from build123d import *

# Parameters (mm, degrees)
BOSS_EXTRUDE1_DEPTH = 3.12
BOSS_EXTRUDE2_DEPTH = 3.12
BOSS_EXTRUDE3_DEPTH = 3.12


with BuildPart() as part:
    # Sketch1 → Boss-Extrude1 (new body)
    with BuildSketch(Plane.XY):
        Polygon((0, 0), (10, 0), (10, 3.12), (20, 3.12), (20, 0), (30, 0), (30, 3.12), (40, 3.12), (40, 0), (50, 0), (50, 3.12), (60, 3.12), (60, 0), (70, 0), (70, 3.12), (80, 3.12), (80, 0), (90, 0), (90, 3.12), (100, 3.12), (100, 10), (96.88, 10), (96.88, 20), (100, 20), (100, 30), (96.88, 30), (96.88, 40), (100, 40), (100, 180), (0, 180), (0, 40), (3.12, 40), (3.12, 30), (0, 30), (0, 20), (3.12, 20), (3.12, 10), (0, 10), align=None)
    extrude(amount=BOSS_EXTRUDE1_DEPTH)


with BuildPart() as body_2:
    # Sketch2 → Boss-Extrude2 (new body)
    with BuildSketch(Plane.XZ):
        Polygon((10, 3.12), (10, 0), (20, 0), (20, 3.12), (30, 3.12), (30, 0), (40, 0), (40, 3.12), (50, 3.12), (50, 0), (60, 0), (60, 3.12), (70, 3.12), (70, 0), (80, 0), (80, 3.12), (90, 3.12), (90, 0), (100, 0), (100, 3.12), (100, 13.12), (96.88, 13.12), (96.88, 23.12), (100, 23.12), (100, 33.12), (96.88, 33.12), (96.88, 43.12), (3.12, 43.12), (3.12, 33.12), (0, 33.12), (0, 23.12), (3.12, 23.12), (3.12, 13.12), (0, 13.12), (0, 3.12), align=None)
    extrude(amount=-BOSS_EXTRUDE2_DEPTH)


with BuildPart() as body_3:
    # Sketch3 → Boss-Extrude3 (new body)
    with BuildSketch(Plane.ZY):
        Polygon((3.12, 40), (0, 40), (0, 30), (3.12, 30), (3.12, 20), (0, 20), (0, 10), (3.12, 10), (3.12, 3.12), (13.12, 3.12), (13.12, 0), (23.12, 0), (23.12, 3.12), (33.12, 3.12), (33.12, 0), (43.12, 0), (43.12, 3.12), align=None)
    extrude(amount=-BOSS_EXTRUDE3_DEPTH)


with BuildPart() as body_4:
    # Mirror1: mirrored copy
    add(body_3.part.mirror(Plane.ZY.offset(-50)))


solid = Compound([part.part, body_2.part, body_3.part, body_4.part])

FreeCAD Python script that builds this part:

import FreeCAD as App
import Part
import Sketcher

doc = App.newDocument("Part")
body = doc.addObject("PartDesign::Body", "Body")

sketch1 = body.newObject("Sketcher::SketchObject", "Sketch")
sketch1.AttachmentSupport = (doc.getObject("XY_Plane"), [""])
sketch1.MapMode = "FlatFace"
sketch1.addGeometry([
    Part.LineSegment(App.Vector(0, 0, 0), App.Vector(10, 0, 0)),
    Part.LineSegment(App.Vector(10, 0, 0), App.Vector(10, 3.12, 0)),
    Part.LineSegment(App.Vector(10, 3.12, 0), App.Vector(20, 3.12, 0)),
    Part.LineSegment(App.Vector(20, 3.12, 0), App.Vector(20, 0, 0)),
    Part.LineSegment(App.Vector(20, 0, 0), App.Vector(30, 0, 0)),
    Part.LineSegment(App.Vector(30, 0, 0), App.Vector(30, 3.12, 0)),
    Part.LineSegment(App.Vector(30, 3.12, 0), App.Vector(40, 3.12, 0)),
    Part.LineSegment(App.Vector(40, 3.12, 0), App.Vector(40, 0, 0)),
    Part.LineSegment(App.Vector(40, 0, 0), App.Vector(50, 0, 0)),
    Part.LineSegment(App.Vector(50, 0, 0), App.Vector(50, 3.12, 0)),
    Part.LineSegment(App.Vector(50, 3.12, 0), App.Vector(60, 3.12, 0)),
    Part.LineSegment(App.Vector(60, 3.12, 0), App.Vector(60, 0, 0)),
    Part.LineSegment(App.Vector(60, 0, 0), App.Vector(70, 0, 0)),
    Part.LineSegment(App.Vector(70, 0, 0), App.Vector(70, 3.12, 0)),
    Part.LineSegment(App.Vector(70, 3.12, 0), App.Vector(80, 3.12, 0)),
    Part.LineSegment(App.Vector(80, 3.12, 0), App.Vector(80, 0, 0)),
    Part.LineSegment(App.Vector(80, 0, 0), App.Vector(90, 0, 0)),
    Part.LineSegment(App.Vector(90, 0, 0), App.Vector(90, 3.12, 0)),
    Part.LineSegment(App.Vector(90, 3.12, 0), App.Vector(100, 3.12, 0)),
    Part.LineSegment(App.Vector(100, 3.12, 0), App.Vector(100, 10, 0)),
    Part.LineSegment(App.Vector(100, 10, 0), App.Vector(96.88, 10, 0)),
    Part.LineSegment(App.Vector(96.88, 10, 0), App.Vector(96.88, 20, 0)),
    Part.LineSegment(App.Vector(96.88, 20, 0), App.Vector(100, 20, 0)),
    Part.LineSegment(App.Vector(100, 20, 0), App.Vector(100, 30, 0)),
    Part.LineSegment(App.Vector(100, 30, 0), App.Vector(96.88, 30, 0)),
    Part.LineSegment(App.Vector(96.88, 30, 0), App.Vector(96.88, 40, 0)),
    Part.LineSegment(App.Vector(96.88, 40, 0), App.Vector(100, 40, 0)),
    Part.LineSegment(App.Vector(100, 40, 0), App.Vector(100, 180, 0)),
    Part.LineSegment(App.Vector(100, 180, 0), App.Vector(0, 180, 0)),
    Part.LineSegment(App.Vector(0, 180, 0), App.Vector(0, 40, 0)),
    Part.LineSegment(App.Vector(0, 40, 0), App.Vector(3.12, 40, 0)),
    Part.LineSegment(App.Vector(3.12, 40, 0), App.Vector(3.12, 30, 0)),
    Part.LineSegment(App.Vector(3.12, 30, 0), App.Vector(0, 30, 0)),
    Part.LineSegment(App.Vector(0, 30, 0), App.Vector(0, 20, 0)),
    Part.LineSegment(App.Vector(0, 20, 0), App.Vector(3.12, 20, 0)),
    Part.LineSegment(App.Vector(3.12, 20, 0), App.Vector(3.12, 10, 0)),
    Part.LineSegment(App.Vector(3.12, 10, 0), App.Vector(0, 10, 0)),
    Part.LineSegment(App.Vector(0, 10, 0), App.Vector(0, 0, 0)),
], False)
sketch1.addConstraint([
    Sketcher.Constraint("Coincident", 0, 2, 1, 1),
    Sketcher.Constraint("Coincident", 1, 2, 2, 1),
    Sketcher.Constraint("Coincident", 2, 2, 3, 1),
    Sketcher.Constraint("Coincident", 3, 2, 4, 1),
    Sketcher.Constraint("Coincident", 4, 2, 5, 1),
    Sketcher.Constraint("Coincident", 5, 2, 6, 1),
    Sketcher.Constraint("Coincident", 6, 2, 7, 1),
    Sketcher.Constraint("Coincident", 7, 2, 8, 1),
    Sketcher.Constraint("Coincident", 8, 2, 9, 1),
    Sketcher.Constraint("Coincident", 9, 2, 10, 1),
    Sketcher.Constraint("Coincident", 10, 2, 11, 1),
    Sketcher.Constraint("Coincident", 11, 2, 12, 1),
    Sketcher.Constraint("Coincident", 12, 2, 13, 1),
    Sketcher.Constraint("Coincident", 13, 2, 14, 1),
    Sketcher.Constraint("Coincident", 14, 2, 15, 1),
    Sketcher.Constraint("Coincident", 15, 2, 16, 1),
    Sketcher.Constraint("Coincident", 16, 2, 17, 1),
    Sketcher.Constraint("Coincident", 17, 2, 18, 1),
    Sketcher.Constraint("Coincident", 18, 2, 19, 1),
    Sketcher.Constraint("Coincident", 19, 2, 20, 1),
    Sketcher.Constraint("Coincident", 20, 2, 21, 1),
    Sketcher.Constraint("Coincident", 21, 2, 22, 1),
    Sketcher.Constraint("Coincident", 22, 2, 23, 1),
    Sketcher.Constraint("Coincident", 23, 2, 24, 1),
    Sketcher.Constraint("Coincident", 24, 2, 25, 1),
    Sketcher.Constraint("Coincident", 25, 2, 26, 1),
    Sketcher.Constraint("Coincident", 26, 2, 27, 1),
    Sketcher.Constraint("Coincident", 27, 2, 28, 1),
    Sketcher.Constraint("Coincident", 28, 2, 29, 1),
    Sketcher.Constraint("Coincident", 29, 2, 30, 1),
    Sketcher.Constraint("Coincident", 30, 2, 31, 1),
    Sketcher.Constraint("Coincident", 31, 2, 32, 1),
    Sketcher.Constraint("Coincident", 32, 2, 33, 1),
    Sketcher.Constraint("Coincident", 33, 2, 34, 1),
    Sketcher.Constraint("Coincident", 34, 2, 35, 1),
    Sketcher.Constraint("Coincident", 35, 2, 36, 1),
    Sketcher.Constraint("Coincident", 36, 2, 37, 1),
    Sketcher.Constraint("Coincident", 37, 2, 0, 1),
    Sketcher.Constraint("Horizontal", 0),
    Sketcher.Constraint("Vertical", 1),
    Sketcher.Constraint("Horizontal", 2),
    Sketcher.Constraint("Vertical", 3),
    Sketcher.Constraint("Horizontal", 4),
    Sketcher.Constraint("Vertical", 5),
    Sketcher.Constraint("Horizontal", 6),
    Sketcher.Constraint("Vertical", 7),
    Sketcher.Constraint("Horizontal", 8),
    Sketcher.Constraint("Vertical", 9),
    Sketcher.Constraint("Horizontal", 10),
    Sketcher.Constraint("Vertical", 11),
    Sketcher.Constraint("Horizontal", 12),
    Sketcher.Constraint("Vertical", 13),
    Sketcher.Constraint("Horizontal", 14),
    Sketcher.Constraint("Vertical", 15),
    Sketcher.Constraint("Horizontal", 16),
    Sketcher.Constraint("Vertical", 17),
    Sketcher.Constraint("Horizontal", 18),
    Sketcher.Constraint("Vertical", 19),
    Sketcher.Constraint("Horizontal", 20),
    Sketcher.Constraint("Vertical", 21),
    Sketcher.Constraint("Horizontal", 22),
    Sketcher.Constraint("Vertical", 23),
    Sketcher.Constraint("Horizontal", 24),
    Sketcher.Constraint("Vertical", 25),
    Sketcher.Constraint("Horizontal", 26),
    Sketcher.Constraint("Vertical", 27),
    Sketcher.Constraint("Horizontal", 28),
    Sketcher.Constraint("Vertical", 29),
    Sketcher.Constraint("Horizontal", 30),
    Sketcher.Constraint("Vertical", 31),
    Sketcher.Constraint("Horizontal", 32),
    Sketcher.Constraint("Vertical", 33),
    Sketcher.Constraint("Horizontal", 34),
    Sketcher.Constraint("Vertical", 35),
    Sketcher.Constraint("Horizontal", 36),
    Sketcher.Constraint("Vertical", 37),
    Sketcher.Constraint("Coincident", 37, 2, -1, 1),
    Sketcher.Constraint("PointOnObject", 3, 2, -1),
    Sketcher.Constraint("PointOnObject", 7, 2, -1),
    Sketcher.Constraint("PointOnObject", 11, 2, -1),
    Sketcher.Constraint("PointOnObject", 15, 2, -1),
    Sketcher.Constraint("PointOnObject", 28, 2, -2),
    Sketcher.Constraint("PointOnObject", 32, 2, -2),
    Sketcher.Constraint("Horizontal", 2, 2, 5, 2),
    Sketcher.Constraint("Horizontal", 6, 2, 9, 2),
    Sketcher.Constraint("Horizontal", 10, 2, 13, 2),
    Sketcher.Constraint("Horizontal", 14, 2, 17, 2),
    Sketcher.Constraint("Horizontal", 26, 2, 29, 2),
    Sketcher.Constraint("Horizontal", 24, 2, 31, 2),
    Sketcher.Constraint("Horizontal", 22, 2, 33, 2),
    Sketcher.Constraint("Horizontal", 20, 2, 35, 2),
    Sketcher.Constraint("Vertical", 19, 2, 22, 2),
    Sketcher.Constraint("Vertical", 21, 2, 24, 2),
    Sketcher.Constraint("Vertical", 23, 2, 26, 2),
    Sketcher.Constraint("Vertical", 31, 2, 34, 2),
    Sketcher.Constraint("Equal", 0, 2),
    Sketcher.Constraint("Equal", 2, 4),
    Sketcher.Constraint("Equal", 4, 6),
    Sketcher.Constraint("Equal", 6, 8),
    Sketcher.Constraint("Equal", 8, 10),
    Sketcher.Constraint("Equal", 10, 12),
    Sketcher.Constraint("Equal", 12, 14),
    Sketcher.Constraint("Equal", 14, 16),
    Sketcher.Constraint("Equal", 16, 18),
    Sketcher.Constraint("Equal", 26, 30),
    Sketcher.Constraint("Equal", 36, 1),
    Sketcher.Constraint("Equal", 18, 21),
    Sketcher.Constraint("Equal", 21, 23),
    Sketcher.Constraint("Equal", 23, 25),
    Sketcher.Constraint("Equal", 35, 37),
    Sketcher.Constraint("DistanceX", 0, 1, 0, 2, 10.0),
    Sketcher.Constraint("DistanceY", 27, 1, 27, 2, 140.0),
    Sketcher.Constraint("DistanceX", 20, 2, 20, 1, 3.12),
])
pad1 = body.newObject("PartDesign::Pad", "Pad")
pad1.Profile = sketch1
pad1.Length = 3.12
body2 = doc.addObject("PartDesign::Body", "Body001")

sketch2 = body2.newObject("Sketcher::SketchObject", "Sketch001")
sketch2.AttachmentSupport = (doc.getObject("XZ_Plane001"), [""])
sketch2.MapMode = "FlatFace"
sketch2.addGeometry([
    Part.LineSegment(App.Vector(10, 3.12, 0), App.Vector(10, 0, 0)),
    Part.LineSegment(App.Vector(10, 0, 0), App.Vector(20, 0, 0)),
    Part.LineSegment(App.Vector(20, 0, 0), App.Vector(20, 3.12, 0)),
    Part.LineSegment(App.Vector(20, 3.12, 0), App.Vector(30, 3.12, 0)),
    Part.LineSegment(App.Vector(30, 3.12, 0), App.Vector(30, 0, 0)),
    Part.LineSegment(App.Vector(30, 0, 0), App.Vector(40, 0, 0)),
    Part.LineSegment(App.Vector(40, 0, 0), App.Vector(40, 3.12, 0)),
    Part.LineSegment(App.Vector(40, 3.12, 0), App.Vector(50, 3.12, 0)),
    Part.LineSegment(App.Vector(50, 3.12, 0), App.Vector(50, 0, 0)),
    Part.LineSegment(App.Vector(50, 0, 0), App.Vector(60, 0, 0)),
    Part.LineSegment(App.Vector(60, 0, 0), App.Vector(60, 3.12, 0)),
    Part.LineSegment(App.Vector(60, 3.12, 0), App.Vector(70, 3.12, 0)),
    Part.LineSegment(App.Vector(70, 3.12, 0), App.Vector(70, 0, 0)),
    Part.LineSegment(App.Vector(70, 0, 0), App.Vector(80, 0, 0)),
    Part.LineSegment(App.Vector(80, 0, 0), App.Vector(80, 3.12, 0)),
    Part.LineSegment(App.Vector(80, 3.12, 0), App.Vector(90, 3.12, 0)),
    Part.LineSegment(App.Vector(90, 3.12, 0), App.Vector(90, 0, 0)),
    Part.LineSegment(App.Vector(90, 0, 0), App.Vector(100, 0, 0)),
    Part.LineSegment(App.Vector(100, 0, 0), App.Vector(100, 13.12, 0)),
    Part.LineSegment(App.Vector(100, 13.12, 0), App.Vector(96.88, 13.12, 0)),
    Part.LineSegment(App.Vector(96.88, 13.12, 0), App.Vector(96.88, 23.12, 0)),
    Part.LineSegment(App.Vector(96.88, 23.12, 0), App.Vector(100, 23.12, 0)),
    Part.LineSegment(App.Vector(100, 23.12, 0), App.Vector(100, 33.12, 0)),
    Part.LineSegment(App.Vector(100, 33.12, 0), App.Vector(96.88, 33.12, 0)),
    Part.LineSegment(App.Vector(96.88, 33.12, 0), App.Vector(96.88, 43.12, 0)),
    Part.LineSegment(App.Vector(96.88, 43.12, 0), App.Vector(3.12, 43.12, 0)),
    Part.LineSegment(App.Vector(3.12, 43.12, 0), App.Vector(3.12, 33.12, 0)),
    Part.LineSegment(App.Vector(3.12, 33.12, 0), App.Vector(0, 33.12, 0)),
    Part.LineSegment(App.Vector(0, 33.12, 0), App.Vector(0, 23.12, 0)),
    Part.LineSegment(App.Vector(0, 23.12, 0), App.Vector(3.12, 23.12, 0)),
    Part.LineSegment(App.Vector(3.12, 23.12, 0), App.Vector(3.12, 13.12, 0)),
    Part.LineSegment(App.Vector(3.12, 13.12, 0), App.Vector(0, 13.12, 0)),
    Part.LineSegment(App.Vector(0, 13.12, 0), App.Vector(0, 3.12, 0)),
    Part.LineSegment(App.Vector(0, 3.12, 0), App.Vector(10, 3.12, 0)),
], False)
sketch2.addConstraint([
    Sketcher.Constraint("Coincident", 0, 2, 1, 1),
    Sketcher.Constraint("Coincident", 1, 2, 2, 1),
    Sketcher.Constraint("Coincident", 2, 2, 3, 1),
    Sketcher.Constraint("Coincident", 3, 2, 4, 1),
    Sketcher.Constraint("Coincident", 4, 2, 5, 1),
    Sketcher.Constraint("Coincident", 5, 2, 6, 1),
    Sketcher.Constraint("Coincident", 6, 2, 7, 1),
    Sketcher.Constraint("Coincident", 7, 2, 8, 1),
    Sketcher.Constraint("Coincident", 8, 2, 9, 1),
    Sketcher.Constraint("Coincident", 9, 2, 10, 1),
    Sketcher.Constraint("Coincident", 10, 2, 11, 1),
    Sketcher.Constraint("Coincident", 11, 2, 12, 1),
    Sketcher.Constraint("Coincident", 12, 2, 13, 1),
    Sketcher.Constraint("Coincident", 13, 2, 14, 1),
    Sketcher.Constraint("Coincident", 14, 2, 15, 1),
    Sketcher.Constraint("Coincident", 15, 2, 16, 1),
    Sketcher.Constraint("Coincident", 16, 2, 17, 1),
    Sketcher.Constraint("Coincident", 17, 2, 18, 1),
    Sketcher.Constraint("Coincident", 18, 2, 19, 1),
    Sketcher.Constraint("Coincident", 19, 2, 20, 1),
    Sketcher.Constraint("Coincident", 20, 2, 21, 1),
    Sketcher.Constraint("Coincident", 21, 2, 22, 1),
    Sketcher.Constraint("Coincident", 22, 2, 23, 1),
    Sketcher.Constraint("Coincident", 23, 2, 24, 1),
    Sketcher.Constraint("Coincident", 24, 2, 25, 1),
    Sketcher.Constraint("Coincident", 25, 2, 26, 1),
    Sketcher.Constraint("Coincident", 26, 2, 27, 1),
    Sketcher.Constraint("Coincident", 27, 2, 28, 1),
    Sketcher.Constraint("Coincident", 28, 2, 29, 1),
    Sketcher.Constraint("Coincident", 29, 2, 30, 1),
    Sketcher.Constraint("Coincident", 30, 2, 31, 1),
    Sketcher.Constraint("Coincident", 31, 2, 32, 1),
    Sketcher.Constraint("Coincident", 32, 2, 33, 1),
    Sketcher.Constraint("Coincident", 33, 2, 0, 1),
    Sketcher.Constraint("Vertical", 0),
    Sketcher.Constraint("Horizontal", 1),
    Sketcher.Constraint("Vertical", 2),
    Sketcher.Constraint("Horizontal", 3),
    Sketcher.Constraint("Vertical", 4),
    Sketcher.Constraint("Horizontal", 5),
    Sketcher.Constraint("Vertical", 6),
    Sketcher.Constraint("Horizontal", 7),
    Sketcher.Constraint("Vertical", 8),
    Sketcher.Constraint("Horizontal", 9),
    Sketcher.Constraint("Vertical", 10),
    Sketcher.Constraint("Horizontal", 11),
    Sketcher.Constraint("Vertical", 12),
    Sketcher.Constraint("Horizontal", 13),
    Sketcher.Constraint("Vertical", 14),
    Sketcher.Constraint("Horizontal", 15),
    Sketcher.Constraint("Vertical", 16),
    Sketcher.Constraint("Horizontal", 17),
    Sketcher.Constraint("Vertical", 18),
    Sketcher.Constraint("Horizontal", 19),
    Sketcher.Constraint("Vertical", 20),
    Sketcher.Constraint("Horizontal", 21),
    Sketcher.Constraint("Vertical", 22),
    Sketcher.Constraint("Horizontal", 23),
    Sketcher.Constraint("Vertical", 24),
    Sketcher.Constraint("Horizontal", 25),
    Sketcher.Constraint("Vertical", 26),
    Sketcher.Constraint("Horizontal", 27),
    Sketcher.Constraint("Vertical", 28),
    Sketcher.Constraint("Horizontal", 29),
    Sketcher.Constraint("Vertical", 30),
    Sketcher.Constraint("Horizontal", 31),
    Sketcher.Constraint("Vertical", 32),
    Sketcher.Constraint("Horizontal", 33),
    Sketcher.Constraint("PointOnObject", 0, 2, -1),
    Sketcher.Constraint("PointOnObject", 4, 2, -1),
    Sketcher.Constraint("PointOnObject", 8, 2, -1),
    Sketcher.Constraint("PointOnObject", 12, 2, -1),
    Sketcher.Constraint("PointOnObject", 16, 2, -1),
    Sketcher.Constraint("PointOnObject", 27, 2, -2),
    Sketcher.Constraint("PointOnObject", 31, 2, -2),
    Sketcher.Constraint("Horizontal", 3, 2, 6, 2),
    Sketcher.Constraint("Horizontal", 7, 2, 10, 2),
    Sketcher.Constraint("Horizontal", 11, 2, 14, 2),
    Sketcher.Constraint("Horizontal", 23, 2, 26, 2),
    Sketcher.Constraint("Horizontal", 21, 2, 28, 2),
    Sketcher.Constraint("Horizontal", 19, 2, 30, 2),
    Sketcher.Constraint("Horizontal", 15, 2, 32, 2),
    Sketcher.Constraint("Vertical", 18, 2, 21, 2),
    Sketcher.Constraint("Vertical", 20, 2, 23, 2),
    Sketcher.Constraint("Vertical", 26, 2, 29, 2),
    Sketcher.Constraint("Equal", 1, 3),
    Sketcher.Constraint("Equal", 3, 5),
    Sketcher.Constraint("Equal", 5, 7),
    Sketcher.Constraint("Equal", 7, 9),
    Sketcher.Constraint("Equal", 9, 11),
    Sketcher.Constraint("Equal", 11, 13),
    Sketcher.Constraint("Equal", 13, 15),
    Sketcher.Constraint("Equal", 15, 17),
    Sketcher.Constraint("Equal", 23, 27),
    Sketcher.Constraint("Equal", 17, 33),
    Sketcher.Constraint("Equal", 31, 0),
    Sketcher.Constraint("Equal", 33, 20),
    Sketcher.Constraint("Equal", 20, 22),
    Sketcher.Constraint("Equal", 22, 24),
    Sketcher.Constraint("Equal", 30, 32),
    Sketcher.Constraint("DistanceX", 1, 1, 1, 2, 10.0),
    Sketcher.Constraint("DistanceX", 19, 2, 19, 1, 3.12),
])
pad2 = body2.newObject("PartDesign::Pad", "Pad001")
pad2.Profile = sketch2
pad2.Length = 3.12
pad2.Reversed = True
body3 = doc.addObject("PartDesign::Body", "Body002")

sketch3 = body3.newObject("Sketcher::SketchObject", "Sketch002")
sketch3.AttachmentSupport = (doc.getObject("YZ_Plane002"), [""])
sketch3.MapMode = "FlatFace"
sketch3.addGeometry([
    Part.LineSegment(App.Vector(40, 3.12, 0), App.Vector(40, 0, 0)),
    Part.LineSegment(App.Vector(40, 0, 0), App.Vector(30, 0, 0)),
    Part.LineSegment(App.Vector(30, 0, 0), App.Vector(30, 3.12, 0)),
    Part.LineSegment(App.Vector(30, 3.12, 0), App.Vector(20, 3.12, 0)),
    Part.LineSegment(App.Vector(20, 3.12, 0), App.Vector(20, 0, 0)),
    Part.LineSegment(App.Vector(20, 0, 0), App.Vector(10, 0, 0)),
    Part.LineSegment(App.Vector(10, 0, 0), App.Vector(10, 3.12, 0)),
    Part.LineSegment(App.Vector(10, 3.12, 0), App.Vector(3.12, 3.12, 0)),
    Part.LineSegment(App.Vector(3.12, 3.12, 0), App.Vector(3.12, 13.12, 0)),
    Part.LineSegment(App.Vector(3.12, 13.12, 0), App.Vector(0, 13.12, 0)),
    Part.LineSegment(App.Vector(0, 13.12, 0), App.Vector(0, 23.12, 0)),
    Part.LineSegment(App.Vector(0, 23.12, 0), App.Vector(3.12, 23.12, 0)),
    Part.LineSegment(App.Vector(3.12, 23.12, 0), App.Vector(3.12, 33.12, 0)),
    Part.LineSegment(App.Vector(3.12, 33.12, 0), App.Vector(0, 33.12, 0)),
    Part.LineSegment(App.Vector(0, 33.12, 0), App.Vector(0, 43.12, 0)),
    Part.LineSegment(App.Vector(0, 43.12, 0), App.Vector(3.12, 43.12, 0)),
    Part.LineSegment(App.Vector(3.12, 43.12, 0), App.Vector(40, 3.12, 0)),
], False)
sketch3.addConstraint([
    Sketcher.Constraint("Coincident", 0, 2, 1, 1),
    Sketcher.Constraint("Coincident", 1, 2, 2, 1),
    Sketcher.Constraint("Coincident", 2, 2, 3, 1),
    Sketcher.Constraint("Coincident", 3, 2, 4, 1),
    Sketcher.Constraint("Coincident", 4, 2, 5, 1),
    Sketcher.Constraint("Coincident", 5, 2, 6, 1),
    Sketcher.Constraint("Coincident", 6, 2, 7, 1),
    Sketcher.Constraint("Coincident", 7, 2, 8, 1),
    Sketcher.Constraint("Coincident", 8, 2, 9, 1),
    Sketcher.Constraint("Coincident", 9, 2, 10, 1),
    Sketcher.Constraint("Coincident", 10, 2, 11, 1),
    Sketcher.Constraint("Coincident", 11, 2, 12, 1),
    Sketcher.Constraint("Coincident", 12, 2, 13, 1),
    Sketcher.Constraint("Coincident", 13, 2, 14, 1),
    Sketcher.Constraint("Coincident", 14, 2, 15, 1),
    Sketcher.Constraint("Coincident", 15, 2, 16, 1),
    Sketcher.Constraint("Coincident", 16, 2, 0, 1),
    Sketcher.Constraint("Vertical", 0),
    Sketcher.Constraint("Horizontal", 1),
    Sketcher.Constraint("Vertical", 2),
    Sketcher.Constraint("Horizontal", 3),
    Sketcher.Constraint("Vertical", 4),
    Sketcher.Constraint("Horizontal", 5),
    Sketcher.Constraint("Vertical", 6),
    Sketcher.Constraint("Horizontal", 7),
    Sketcher.Constraint("Vertical", 8),
    Sketcher.Constraint("Horizontal", 9),
    Sketcher.Constraint("Vertical", 10),
    Sketcher.Constraint("Horizontal", 11),
    Sketcher.Constraint("Vertical", 12),
    Sketcher.Constraint("Horizontal", 13),
    Sketcher.Constraint("Vertical", 14),
    Sketcher.Constraint("Horizontal", 15),
    Sketcher.Constraint("PointOnObject", 0, 2, -1),
    Sketcher.Constraint("PointOnObject", 4, 2, -1),
    Sketcher.Constraint("PointOnObject", 9, 2, -2),
    Sketcher.Constraint("PointOnObject", 13, 2, -2),
    Sketcher.Constraint("Horizontal", 3, 2, 6, 2),
    Sketcher.Constraint("Horizontal", 7, 2, 16, 2),
    Sketcher.Constraint("Vertical", 8, 2, 11, 2),
    Sketcher.Constraint("Vertical", 12, 2, 15, 2),
    Sketcher.Constraint("Equal", 1, 3),
    Sketcher.Constraint("Equal", 3, 5),
    Sketcher.Constraint("Equal", 15, 0),
    Sketcher.Constraint("Equal", 5, 8),
    Sketcher.Constraint("Equal", 8, 10),
    Sketcher.Constraint("Equal", 10, 12),
    Sketcher.Constraint("Equal", 12, 14),
    Sketcher.Constraint("DistanceX", 1, 2, 1, 1, 10.0),
    Sketcher.Constraint("DistanceX", -1, 1, 0, 2, 40.0),
    Sketcher.Constraint("DistanceX", 7, 2, 7, 1, 6.88),
])
pad3 = body3.newObject("PartDesign::Pad", "Pad002")
pad3.Profile = sketch3
pad3.Length = 3.12
body4 = doc.addObject("PartDesign::Body", "Body003")
doc.recompute()

mirroring = doc.addObject("Part::Mirroring", "Mirroring")
mirroring.Source = body3
mirroring.Base = App.Vector(50, 0, 0)
mirroring.Normal = App.Vector(-1, 0, 0)
body4.BaseFeature = mirroring
doc.recompute()
mirroring.Visibility = False

doc.recompute()
